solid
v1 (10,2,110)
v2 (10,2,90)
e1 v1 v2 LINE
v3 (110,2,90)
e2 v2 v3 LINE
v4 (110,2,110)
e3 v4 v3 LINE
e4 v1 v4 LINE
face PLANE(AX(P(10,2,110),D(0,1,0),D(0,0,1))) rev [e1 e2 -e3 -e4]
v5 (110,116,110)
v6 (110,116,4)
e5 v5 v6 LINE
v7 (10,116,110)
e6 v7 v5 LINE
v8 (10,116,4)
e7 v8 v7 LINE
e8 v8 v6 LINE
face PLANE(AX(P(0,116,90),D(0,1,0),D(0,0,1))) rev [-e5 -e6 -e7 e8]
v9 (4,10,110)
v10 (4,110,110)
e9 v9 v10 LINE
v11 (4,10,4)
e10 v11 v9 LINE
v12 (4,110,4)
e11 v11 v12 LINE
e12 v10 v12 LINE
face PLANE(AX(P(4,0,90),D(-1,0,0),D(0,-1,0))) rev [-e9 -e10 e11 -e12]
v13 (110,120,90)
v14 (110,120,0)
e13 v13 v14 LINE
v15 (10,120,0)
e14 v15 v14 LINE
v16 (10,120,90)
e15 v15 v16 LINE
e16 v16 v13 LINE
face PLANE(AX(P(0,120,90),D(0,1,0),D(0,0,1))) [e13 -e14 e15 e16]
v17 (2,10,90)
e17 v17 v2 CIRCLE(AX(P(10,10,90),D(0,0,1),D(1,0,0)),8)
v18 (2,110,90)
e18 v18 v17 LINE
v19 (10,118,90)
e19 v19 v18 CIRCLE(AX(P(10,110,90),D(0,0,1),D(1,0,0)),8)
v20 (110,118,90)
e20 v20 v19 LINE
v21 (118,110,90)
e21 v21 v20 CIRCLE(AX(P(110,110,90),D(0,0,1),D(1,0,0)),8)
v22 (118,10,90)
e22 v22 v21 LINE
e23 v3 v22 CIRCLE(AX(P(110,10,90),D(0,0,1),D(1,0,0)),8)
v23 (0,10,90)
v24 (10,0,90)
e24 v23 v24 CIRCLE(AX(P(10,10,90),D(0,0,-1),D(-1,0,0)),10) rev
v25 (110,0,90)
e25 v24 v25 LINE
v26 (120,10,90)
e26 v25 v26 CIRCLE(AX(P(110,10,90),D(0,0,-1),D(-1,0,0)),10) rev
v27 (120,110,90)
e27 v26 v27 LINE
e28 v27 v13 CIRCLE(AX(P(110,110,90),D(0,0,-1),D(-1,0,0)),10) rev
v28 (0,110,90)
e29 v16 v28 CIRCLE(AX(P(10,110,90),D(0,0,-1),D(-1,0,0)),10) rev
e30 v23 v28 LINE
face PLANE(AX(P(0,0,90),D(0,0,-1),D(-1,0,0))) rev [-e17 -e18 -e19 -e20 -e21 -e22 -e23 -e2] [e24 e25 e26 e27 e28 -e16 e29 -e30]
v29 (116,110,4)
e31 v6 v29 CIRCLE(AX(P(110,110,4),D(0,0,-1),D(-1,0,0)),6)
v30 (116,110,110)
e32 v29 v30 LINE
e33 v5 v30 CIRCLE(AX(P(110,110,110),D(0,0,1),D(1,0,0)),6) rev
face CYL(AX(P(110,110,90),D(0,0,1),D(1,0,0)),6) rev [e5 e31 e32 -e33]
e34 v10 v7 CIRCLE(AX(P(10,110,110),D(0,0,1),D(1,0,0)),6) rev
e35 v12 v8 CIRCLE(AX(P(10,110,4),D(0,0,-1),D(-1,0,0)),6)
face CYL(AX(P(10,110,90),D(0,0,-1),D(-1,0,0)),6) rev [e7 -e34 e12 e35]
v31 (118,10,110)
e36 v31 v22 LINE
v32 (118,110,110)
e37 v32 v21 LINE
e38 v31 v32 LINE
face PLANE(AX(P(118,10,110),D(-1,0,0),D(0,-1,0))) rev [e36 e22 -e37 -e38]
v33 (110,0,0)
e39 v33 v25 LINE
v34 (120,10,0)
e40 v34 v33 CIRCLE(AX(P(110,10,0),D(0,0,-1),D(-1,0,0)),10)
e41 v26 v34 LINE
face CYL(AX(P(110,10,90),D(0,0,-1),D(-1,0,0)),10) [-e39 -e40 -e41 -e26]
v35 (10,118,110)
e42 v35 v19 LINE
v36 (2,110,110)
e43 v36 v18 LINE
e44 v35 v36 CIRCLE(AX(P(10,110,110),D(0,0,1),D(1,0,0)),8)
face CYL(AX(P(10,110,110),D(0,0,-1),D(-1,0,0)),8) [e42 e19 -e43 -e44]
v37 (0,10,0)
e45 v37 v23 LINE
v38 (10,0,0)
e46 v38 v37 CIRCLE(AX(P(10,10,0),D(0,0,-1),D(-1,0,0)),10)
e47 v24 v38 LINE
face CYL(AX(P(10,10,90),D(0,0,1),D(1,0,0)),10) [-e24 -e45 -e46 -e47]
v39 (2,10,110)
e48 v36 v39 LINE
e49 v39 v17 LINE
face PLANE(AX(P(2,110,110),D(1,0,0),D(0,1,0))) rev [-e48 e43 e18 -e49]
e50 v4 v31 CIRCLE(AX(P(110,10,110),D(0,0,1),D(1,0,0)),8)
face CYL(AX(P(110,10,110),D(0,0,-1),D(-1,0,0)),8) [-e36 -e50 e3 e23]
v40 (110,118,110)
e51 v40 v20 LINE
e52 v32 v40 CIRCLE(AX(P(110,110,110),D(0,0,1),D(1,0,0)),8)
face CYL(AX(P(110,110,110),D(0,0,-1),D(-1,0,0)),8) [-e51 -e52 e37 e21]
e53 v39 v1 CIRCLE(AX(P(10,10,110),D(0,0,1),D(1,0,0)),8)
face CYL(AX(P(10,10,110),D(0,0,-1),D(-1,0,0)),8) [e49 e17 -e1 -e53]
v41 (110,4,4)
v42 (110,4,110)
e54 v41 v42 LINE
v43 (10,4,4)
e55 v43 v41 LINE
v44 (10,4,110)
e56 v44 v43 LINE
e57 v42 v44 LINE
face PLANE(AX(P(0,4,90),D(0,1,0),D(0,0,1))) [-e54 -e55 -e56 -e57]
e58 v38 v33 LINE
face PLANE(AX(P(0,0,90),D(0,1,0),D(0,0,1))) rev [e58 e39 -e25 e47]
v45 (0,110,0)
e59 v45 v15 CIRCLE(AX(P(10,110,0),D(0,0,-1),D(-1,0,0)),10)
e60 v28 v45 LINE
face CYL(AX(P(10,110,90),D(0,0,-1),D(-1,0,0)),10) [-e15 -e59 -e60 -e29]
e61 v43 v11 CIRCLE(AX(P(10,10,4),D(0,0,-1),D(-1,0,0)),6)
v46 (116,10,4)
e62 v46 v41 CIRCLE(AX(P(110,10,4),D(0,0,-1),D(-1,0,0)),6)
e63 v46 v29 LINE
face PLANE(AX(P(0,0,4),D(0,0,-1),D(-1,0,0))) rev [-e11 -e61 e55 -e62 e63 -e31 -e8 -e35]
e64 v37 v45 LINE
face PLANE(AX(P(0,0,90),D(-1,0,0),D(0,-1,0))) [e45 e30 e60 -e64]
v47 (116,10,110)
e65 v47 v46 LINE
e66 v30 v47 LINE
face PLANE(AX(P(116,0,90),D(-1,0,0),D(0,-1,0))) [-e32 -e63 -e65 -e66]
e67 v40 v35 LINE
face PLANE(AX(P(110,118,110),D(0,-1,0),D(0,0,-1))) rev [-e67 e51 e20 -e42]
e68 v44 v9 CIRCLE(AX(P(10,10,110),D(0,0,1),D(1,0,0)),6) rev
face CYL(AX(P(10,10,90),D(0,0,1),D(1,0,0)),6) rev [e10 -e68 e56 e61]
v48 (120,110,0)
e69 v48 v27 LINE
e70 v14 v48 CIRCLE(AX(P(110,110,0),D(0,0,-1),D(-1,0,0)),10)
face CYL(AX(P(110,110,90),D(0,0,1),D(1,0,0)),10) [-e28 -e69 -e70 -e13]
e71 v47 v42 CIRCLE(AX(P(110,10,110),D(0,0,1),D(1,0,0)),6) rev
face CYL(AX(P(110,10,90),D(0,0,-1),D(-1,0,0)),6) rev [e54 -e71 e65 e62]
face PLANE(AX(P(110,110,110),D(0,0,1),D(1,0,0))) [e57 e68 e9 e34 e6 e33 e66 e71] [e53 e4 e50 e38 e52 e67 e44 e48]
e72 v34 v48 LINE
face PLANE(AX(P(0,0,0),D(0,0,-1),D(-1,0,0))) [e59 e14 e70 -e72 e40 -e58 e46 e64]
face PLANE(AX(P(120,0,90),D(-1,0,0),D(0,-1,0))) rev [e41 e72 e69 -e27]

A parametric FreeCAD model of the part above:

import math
import FreeCAD as App
import Part
import Sketcher

V = App.Vector
Q = App.Units.Quantity


def edges_at(feature, points):
    """Names of the edges that pass closest to the given points."""
    edges = feature.Shape.Edges
    near = lambda p: min(range(len(edges)), key=lambda i: edges[i].distToShape(Part.Vertex(*p))[0])
    return sorted({f"Edge{near(p) + 1}" for p in points})


def faces_at(feature, points):
    """Names of the faces that lie closest to the given points."""
    faces = feature.Shape.Faces
    near = lambda p: min(range(len(faces)), key=lambda i: faces[i].distToShape(Part.Vertex(*p))[0])
    return sorted({f"Face{near(p) + 1}" for p in points})

doc = App.newDocument("Part")
params = doc.addObject("Spreadsheet::Sheet", "Params")
for row, (alias, value) in enumerate([
    ("sketch1_width", "120 mm"),
    ("pad1_length", "90 mm"),
    ("fillet_radius", "10 mm"),
    ("thickness_wall", "4 mm"),
    ("sketch2_radius", "8 mm"),
    ("sketch2_radius2", "6 mm"),
    ("sketch2_width", "100 mm"),
    ("pad2_length", "20 mm"),
], start=1):
    params.set(f"A{row}", alias)
    params.set(f"B{row}", "=" + value)
    params.setAlias(f"B{row}", alias)

body = doc.addObject("PartDesign::Body", "Body")

sketch1 = body.newObject("Sketcher::SketchObject", "Sketch")
sketch1.AttachmentSupport = (doc.getObject("XY_Plane"), [""])
sketch1.MapMode = "FlatFace"
sketch1.addGeometry(Part.LineSegment(V(0, 120, 0), V(0, 0, 0)), False)
sketch1.addGeometry(Part.LineSegment(V(0, 0, 0), V(120, 0, 0)), False)
sketch1.addGeometry(Part.LineSegment(V(120, 0, 0), V(120, 120, 0)), False)
sketch1.addGeometry(Part.LineSegment(V(120, 120, 0), V(0, 120, 0)), False)
sketch1.addConstraint(Sketcher.Constraint("Coincident", 0, 2, 1, 1))
sketch1.addConstraint(Sketcher.Constraint("Coincident", 1, 2, 2, 1))
sketch1.addConstraint(Sketcher.Constraint("Coincident", 2, 2, 3, 1))
sketch1.addConstraint(Sketcher.Constraint("Coincident", 3, 2, 0, 1))
sketch1.addConstraint(Sketcher.Constraint("Vertical", 0))
sketch1.addConstraint(Sketcher.Constraint("Horizontal", 1))
sketch1.addConstraint(Sketcher.Constraint("Vertical", 2))
sketch1.addConstraint(Sketcher.Constraint("Horizontal", 3))
sketch1.addConstraint(Sketcher.Constraint("Coincident", 0, 2, -1, 1))
sketch1.addConstraint(Sketcher.Constraint("Equal", 3, 0))
sketch1.addConstraint(Sketcher.Constraint("DistanceX", 1, 1, 1, 2, Q("120 mm")))
sketch1.setExpression("Constraints[10]", "Params.sketch1_width")
pad1 = body.newObject("PartDesign::Pad", "Pad")
pad1.Profile = sketch1
pad1.setExpression("Length", "Params.pad1_length")
doc.recompute()

fillet = body.newObject("PartDesign::Fillet", "Fillet")
fillet.Base = (pad1, edges_at(pad1, [
    (0, 0, 45),
    (120, 0, 45),
    (120, 120, 45),
    (0, 120, 45),
]))
fillet.setExpression("Radius", "Params.fillet_radius")
doc.recompute()

thickness = body.newObject("PartDesign::Thickness", "Thickness")
thickness.Base = (fillet, faces_at(fillet, [(60, 60, 90)]))
thickness.setExpression("Value", "Params.thickness_wall")
thickness.Reversed = True
thickness.Join = "Intersection"

sketch2 = body.newObject("Sketcher::SketchObject", "Sketch001")
sketch2.AttachmentSupport = (doc.getObject("XY_Plane"), [""])
sketch2.MapMode = "FlatFace"
sketch2.AttachmentOffset = App.Placement(V(0, 0, 110), App.Rotation())
sketch2.addGeometry(Part.ArcOfCircle(Part.Circle(V(10, 110, 0), V(0, 0, 1), 8), math.radians(90), math.radians(180)), False)
sketch2.addGeometry(Part.LineSegment(V(2, 110, 0), V(2, 10, 0)), False)
sketch2.addGeometry(Part.ArcOfCircle(Part.Circle(V(10, 10, 0), V(0, 0, 1), 8), math.radians(-180), math.radians(-90)), False)
sketch2.addGeometry(Part.LineSegment(V(10, 2, 0), V(110, 2, 0)), False)
sketch2.addGeometry(Part.ArcOfCircle(Part.Circle(V(110, 10, 0), V(0, 0, 1), 8), math.radians(-90), math.radians(0)), False)
sketch2.addGeometry(Part.LineSegment(V(118, 10, 0), V(118, 110, 0)), False)
sketch2.addGeometry(Part.ArcOfCircle(Part.Circle(V(110, 110, 0), V(0, 0, 1), 8), math.radians(0), math.radians(90)), False)
sketch2.addGeometry(Part.LineSegment(V(110, 118, 0), V(10, 118, 0)), False)
sketch2.addGeometry(Part.LineSegment(V(116, 110, 0), V(116, 10, 0)), False)
sketch2.addGeometry(Part.ArcOfCircle(Part.Circle(V(110, 10, 0), V(0, 0, 1), 6), math.radians(-90), math.radians(0)), False)
sketch2.addGeometry(Part.LineSegment(V(110, 4, 0), V(10, 4, 0)), False)
sketch2.addGeometry(Part.ArcOfCircle(Part.Circle(V(10, 10, 0), V(0, 0, 1), 6), math.radians(180), math.radians(270)), False)
sketch2.addGeometry(Part.LineSegment(V(4, 10, 0), V(4, 110, 0)), False)
sketch2.addGeometry(Part.ArcOfCircle(Part.Circle(V(10, 110, 0), V(0, 0, 1), 6), math.radians(90), math.radians(180)), False)
sketch2.addGeometry(Part.LineSegment(V(10, 116, 0), V(110, 116, 0)), False)
sketch2.addGeometry(Part.ArcOfCircle(Part.Circle(V(110, 110, 0), V(0, 0, 1), 6), math.radians(0), math.radians(90)), False)
sketch2.addConstraint(Sketcher.Constraint("Tangent", 0, 2, 1, 1))
sketch2.addConstraint(Sketcher.Constraint("Tangent", 1, 2, 2, 1))
sketch2.addConstraint(Sketcher.Constraint("Tangent", 2, 2, 3, 1))
sketch2.addConstraint(Sketcher.Constraint("Tangent", 3, 2, 4, 1))
sketch2.addConstraint(Sketcher.Constraint("Tangent", 4, 2, 5, 1))
sketch2.addConstraint(Sketcher.Constraint("Tangent", 5, 2, 6, 1))
sketch2.addConstraint(Sketcher.Constraint("Tangent", 6, 2, 7, 1))
sketch2.addConstraint(Sketcher.Constraint("Tangent", 7, 2, 0, 1))
sketch2.addConstraint(Sketcher.Constraint("Tangent", 8, 2, 9, 2))
sketch2.addConstraint(Sketcher.Constraint("Tangent", 9, 1, 10, 1))
sketch2.addConstraint(Sketcher.Constraint("Tangent", 10, 2, 11, 2))
sketch2.addConstraint(Sketcher.Constraint("Tangent", 11, 1, 12, 1))
sketch2.addConstraint(Sketcher.Constraint("Tangent", 12, 2, 13, 2))
sketch2.addConstraint(Sketcher.Constraint("Tangent", 13, 1, 14, 1))
sketch2.addConstraint(Sketcher.Constraint("Tangent", 14, 2, 15, 2))
sketch2.addConstraint(Sketcher.Constraint("Tangent", 15, 1, 8, 1))
sketch2.addConstraint(Sketcher.Constraint("Vertical", 1))
sketch2.addConstraint(Sketcher.Constraint("Horizontal", 3))
sketch2.addConstraint(Sketcher.Constraint("Vertical", 5))
sketch2.addConstraint(Sketcher.Constraint("Horizontal", 7))
sketch2.addConstraint(Sketcher.Constraint("Vertical", 8))
sketch2.addConstraint(Sketcher.Constraint("Horizontal", 10))
sketch2.addConstraint(Sketcher.Constraint("Vertical", 12))
sketch2.addConstraint(Sketcher.Constraint("Horizontal", 14))
sketch2.addConstraint(Sketcher.Constraint("Coincident", 9, 3, 4, 3))
sketch2.addConstraint(Sketcher.Constraint("Coincident", 11, 3, 2, 3))
sketch2.addConstraint(Sketcher.Constraint("Coincident", 13, 3, 0, 3))
sketch2.addConstraint(Sketcher.Constraint("Equal", 0, 2))
sketch2.addConstraint(Sketcher.Constraint("Equal", 2, 4))
sketch2.addConstraint(Sketcher.Constraint("Equal", 4, 6))
sketch2.addConstraint(Sketcher.Constraint("Equal", 13, 15))
sketch2.addConstraint(Sketcher.Constraint("Equal", 14, 1))
sketch2.addConstraint(Sketcher.Constraint("Radius", 0, Q("8 mm")))
sketch2.addConstraint(Sketcher.Constraint("Radius", 9, Q("6 mm")))
sketch2.addConstraint(Sketcher.Constraint("DistanceX", 3, 1, 3, 2, Q("100 mm")))
sketch2.addConstraint(Sketcher.Constraint("DistanceX", -1, 1, 0, 3, Q("10 mm")))
sketch2.addConstraint(Sketcher.Constraint("DistanceY", -1, 1, 0, 3, Q("110 mm")))
sketch2.setExpression("Constraints[32]", "Params.sketch2_radius")
sketch2.setExpression("Constraints[33]", "Params.sketch2_radius2")
sketch2.setExpression("Constraints[34]", "Params.sketch2_width")
pad2 = body.newObject("PartDesign::Pad", "Pad001")
pad2.Profile = sketch2
pad2.setExpression("Length", "Params.pad2_length")
pad2.Reversed = True

doc.recompute()
